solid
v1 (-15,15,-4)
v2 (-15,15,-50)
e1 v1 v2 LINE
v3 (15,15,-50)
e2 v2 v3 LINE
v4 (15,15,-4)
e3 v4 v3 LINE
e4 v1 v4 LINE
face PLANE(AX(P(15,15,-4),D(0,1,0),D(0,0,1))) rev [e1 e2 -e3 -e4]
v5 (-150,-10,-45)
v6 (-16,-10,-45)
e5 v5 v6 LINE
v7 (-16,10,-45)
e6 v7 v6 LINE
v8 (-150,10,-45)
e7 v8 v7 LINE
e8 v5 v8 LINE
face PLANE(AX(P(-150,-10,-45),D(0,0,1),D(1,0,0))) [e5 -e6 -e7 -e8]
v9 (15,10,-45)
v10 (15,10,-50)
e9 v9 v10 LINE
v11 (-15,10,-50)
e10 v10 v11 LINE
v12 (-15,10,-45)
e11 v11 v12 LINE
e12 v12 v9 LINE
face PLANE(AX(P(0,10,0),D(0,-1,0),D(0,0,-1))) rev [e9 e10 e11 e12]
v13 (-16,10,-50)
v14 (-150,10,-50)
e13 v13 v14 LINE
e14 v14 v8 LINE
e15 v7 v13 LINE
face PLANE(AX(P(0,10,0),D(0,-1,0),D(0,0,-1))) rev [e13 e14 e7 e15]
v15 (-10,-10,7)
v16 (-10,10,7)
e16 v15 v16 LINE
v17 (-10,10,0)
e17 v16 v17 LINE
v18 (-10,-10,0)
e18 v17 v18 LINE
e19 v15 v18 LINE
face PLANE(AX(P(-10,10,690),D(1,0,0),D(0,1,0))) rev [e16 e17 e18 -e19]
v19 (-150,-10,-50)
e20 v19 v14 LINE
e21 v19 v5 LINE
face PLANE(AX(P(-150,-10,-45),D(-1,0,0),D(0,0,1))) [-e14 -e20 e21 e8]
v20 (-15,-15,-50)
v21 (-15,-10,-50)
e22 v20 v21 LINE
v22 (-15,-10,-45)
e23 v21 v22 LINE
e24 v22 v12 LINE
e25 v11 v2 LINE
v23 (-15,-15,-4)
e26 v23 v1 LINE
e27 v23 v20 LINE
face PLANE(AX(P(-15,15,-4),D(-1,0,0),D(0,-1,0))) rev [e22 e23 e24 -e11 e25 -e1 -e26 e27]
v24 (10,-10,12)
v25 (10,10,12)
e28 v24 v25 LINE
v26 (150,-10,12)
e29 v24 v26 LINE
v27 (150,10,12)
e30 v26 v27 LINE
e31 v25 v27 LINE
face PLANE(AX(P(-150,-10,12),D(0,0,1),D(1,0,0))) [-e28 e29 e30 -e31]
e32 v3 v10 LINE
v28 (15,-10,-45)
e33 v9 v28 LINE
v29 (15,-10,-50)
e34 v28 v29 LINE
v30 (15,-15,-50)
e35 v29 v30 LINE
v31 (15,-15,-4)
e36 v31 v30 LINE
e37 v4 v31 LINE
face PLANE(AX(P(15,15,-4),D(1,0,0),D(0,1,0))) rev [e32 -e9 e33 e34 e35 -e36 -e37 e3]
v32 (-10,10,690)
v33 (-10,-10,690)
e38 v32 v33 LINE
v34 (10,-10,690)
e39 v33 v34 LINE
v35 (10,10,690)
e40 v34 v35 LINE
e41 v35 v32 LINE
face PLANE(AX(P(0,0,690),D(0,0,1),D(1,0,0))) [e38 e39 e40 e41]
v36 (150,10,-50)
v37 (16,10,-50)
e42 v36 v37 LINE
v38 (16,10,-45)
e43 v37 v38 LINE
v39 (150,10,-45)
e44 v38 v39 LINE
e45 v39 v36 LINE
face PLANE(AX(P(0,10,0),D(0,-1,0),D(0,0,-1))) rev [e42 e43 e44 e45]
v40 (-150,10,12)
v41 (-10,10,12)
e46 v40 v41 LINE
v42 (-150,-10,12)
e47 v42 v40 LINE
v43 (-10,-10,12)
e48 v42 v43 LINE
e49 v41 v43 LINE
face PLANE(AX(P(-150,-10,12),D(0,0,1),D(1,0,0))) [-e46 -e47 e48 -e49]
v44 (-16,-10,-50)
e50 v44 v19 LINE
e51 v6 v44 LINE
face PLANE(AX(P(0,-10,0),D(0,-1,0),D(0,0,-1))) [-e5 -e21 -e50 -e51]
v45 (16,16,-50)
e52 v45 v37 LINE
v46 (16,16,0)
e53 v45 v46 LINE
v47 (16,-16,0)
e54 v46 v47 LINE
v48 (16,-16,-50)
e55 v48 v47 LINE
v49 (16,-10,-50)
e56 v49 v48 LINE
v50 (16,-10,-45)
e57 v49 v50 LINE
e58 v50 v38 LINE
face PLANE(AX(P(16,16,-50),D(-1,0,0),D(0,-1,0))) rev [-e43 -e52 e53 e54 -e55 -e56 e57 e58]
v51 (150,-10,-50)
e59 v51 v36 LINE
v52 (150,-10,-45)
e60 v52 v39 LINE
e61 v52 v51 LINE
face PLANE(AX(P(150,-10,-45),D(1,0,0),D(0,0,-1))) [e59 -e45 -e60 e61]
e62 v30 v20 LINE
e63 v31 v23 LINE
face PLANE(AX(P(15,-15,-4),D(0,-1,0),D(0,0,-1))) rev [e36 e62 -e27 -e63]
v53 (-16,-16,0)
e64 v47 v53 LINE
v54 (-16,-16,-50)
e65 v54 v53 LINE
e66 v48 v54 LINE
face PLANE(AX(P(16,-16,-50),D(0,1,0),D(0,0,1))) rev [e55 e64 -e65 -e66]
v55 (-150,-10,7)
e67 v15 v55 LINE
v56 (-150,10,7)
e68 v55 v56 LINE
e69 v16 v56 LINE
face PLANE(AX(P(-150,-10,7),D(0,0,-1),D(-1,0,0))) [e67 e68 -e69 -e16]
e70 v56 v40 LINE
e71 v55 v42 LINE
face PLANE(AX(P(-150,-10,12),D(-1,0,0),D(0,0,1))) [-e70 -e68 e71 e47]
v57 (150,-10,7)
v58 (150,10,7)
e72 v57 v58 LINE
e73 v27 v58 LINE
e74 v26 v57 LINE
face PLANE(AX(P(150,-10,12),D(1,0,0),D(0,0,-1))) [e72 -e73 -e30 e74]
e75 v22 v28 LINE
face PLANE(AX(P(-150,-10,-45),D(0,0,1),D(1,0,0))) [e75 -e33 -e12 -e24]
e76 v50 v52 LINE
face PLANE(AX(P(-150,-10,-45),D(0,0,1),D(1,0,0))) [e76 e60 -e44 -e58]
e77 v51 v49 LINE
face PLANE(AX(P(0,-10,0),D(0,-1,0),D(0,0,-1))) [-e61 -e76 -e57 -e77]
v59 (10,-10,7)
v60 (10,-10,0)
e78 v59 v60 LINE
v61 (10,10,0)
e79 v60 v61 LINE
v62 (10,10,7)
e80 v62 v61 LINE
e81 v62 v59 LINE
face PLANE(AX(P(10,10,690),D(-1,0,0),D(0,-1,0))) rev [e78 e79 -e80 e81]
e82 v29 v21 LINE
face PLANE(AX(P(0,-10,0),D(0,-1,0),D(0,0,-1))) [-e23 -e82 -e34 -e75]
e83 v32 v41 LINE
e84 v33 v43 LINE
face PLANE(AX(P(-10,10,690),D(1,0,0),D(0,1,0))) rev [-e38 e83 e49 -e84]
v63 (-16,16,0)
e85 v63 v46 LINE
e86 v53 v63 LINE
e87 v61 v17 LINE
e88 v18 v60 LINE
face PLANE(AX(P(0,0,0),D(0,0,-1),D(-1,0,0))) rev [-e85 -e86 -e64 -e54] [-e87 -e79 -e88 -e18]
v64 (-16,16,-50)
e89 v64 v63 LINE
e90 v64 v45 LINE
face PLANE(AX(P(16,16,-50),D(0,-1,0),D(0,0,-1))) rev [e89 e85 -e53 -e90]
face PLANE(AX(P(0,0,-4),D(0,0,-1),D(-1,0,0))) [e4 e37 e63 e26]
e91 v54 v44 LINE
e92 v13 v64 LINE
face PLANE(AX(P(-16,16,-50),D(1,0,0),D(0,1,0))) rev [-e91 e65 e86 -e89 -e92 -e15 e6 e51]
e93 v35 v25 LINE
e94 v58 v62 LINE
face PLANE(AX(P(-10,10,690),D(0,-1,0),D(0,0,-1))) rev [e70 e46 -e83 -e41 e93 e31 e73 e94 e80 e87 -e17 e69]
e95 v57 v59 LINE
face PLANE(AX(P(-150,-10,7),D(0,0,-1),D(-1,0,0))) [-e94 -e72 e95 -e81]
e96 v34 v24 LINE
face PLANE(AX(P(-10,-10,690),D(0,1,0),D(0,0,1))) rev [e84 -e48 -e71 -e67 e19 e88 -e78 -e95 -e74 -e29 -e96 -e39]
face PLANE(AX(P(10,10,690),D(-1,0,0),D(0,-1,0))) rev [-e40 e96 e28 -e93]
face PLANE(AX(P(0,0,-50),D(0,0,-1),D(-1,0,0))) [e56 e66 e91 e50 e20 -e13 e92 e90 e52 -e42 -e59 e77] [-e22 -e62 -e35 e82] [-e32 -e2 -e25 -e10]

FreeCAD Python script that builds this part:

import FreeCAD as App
import Part
import Sketcher

V = App.Vector
Q = App.Units.Quantity


def add_polygon(sketch, points):
    """Adds a closed chain of lines whose ends are joined by coincident constraints."""
    first, n = sketch.GeometryCount, len(points)
    for a, b in zip(points, points[1:] + points[:1]):
        sketch.addGeometry(Part.LineSegment(App.Vector(*a, 0), App.Vector(*b, 0)), False)
    for i in range(n):
        sketch.addConstraint(Sketcher.Constraint("Coincident", first + i, 2, first + (i + 1) % n, 1))

doc = App.newDocument("Part")
body = doc.addObject("PartDesign::Body", "Body")

sketch1 = body.newObject("Sketcher::SketchObject", "Sketch")
sketch1.AttachmentSupport = (doc.getObject("XY_Plane"), [""])
sketch1.MapMode = "FlatFace"
add_polygon(sketch1, [(-10, 10), (-10, -10), (10, -10), (10, 10)])
sketch1.addConstraint([
    Sketcher.Constraint("Vertical", 0),
    Sketcher.Constraint("Horizontal", 1),
    Sketcher.Constraint("Vertical", 2),
    Sketcher.Constraint("Horizontal", 3),
    Sketcher.Constraint("Symmetric", 0, 2, 2, 2, -1, 1),
    Sketcher.Constraint("Equal", 3, 0),
    Sketcher.Constraint("DistanceX", 1, 1, 1, 2, Q("20 mm")),
])
pad1 = body.newObject("PartDesign::Pad", "Pad")
pad1.Profile = sketch1
pad1.Length = 690

sketch2 = body.newObject("Sketcher::SketchObject", "Sketch001")
sketch2.AttachmentSupport = (doc.getObject("XY_Plane"), [""])
sketch2.MapMode = "FlatFace"
add_polygon(sketch2, [(16, 16), (16, -16), (-16, -16), (-16, 16)])
sketch2.addConstraint([
    Sketcher.Constraint("Vertical", 0),
    Sketcher.Constraint("Horizontal", 1),
    Sketcher.Constraint("Vertical", 2),
    Sketcher.Constraint("Horizontal", 3),
    Sketcher.Constraint("Symmetric", 0, 2, 2, 2, -1, 1),
    Sketcher.Constraint("Equal", 3, 0),
    Sketcher.Constraint("DistanceX", 1, 2, 1, 1, Q("32 mm")),
])
pad2 = body.newObject("PartDesign::Pad", "Pad001")
pad2.Profile = sketch2
pad2.Length = 50
pad2.Reversed = True

sketch3 = body.newObject("Sketcher::SketchObject", "Sketch002")
sketch3.AttachmentSupport = (doc.getObject("XY_Plane"), [""])
sketch3.MapMode = "FlatFace"
sketch3.AttachmentOffset = App.Placement(V(0, 0, -50), App.Rotation())
add_polygon(sketch3, [(15, 15), (15, -15), (-15, -15), (-15, 15)])
sketch3.addConstraint([
    Sketcher.Constraint("Vertical", 0),
    Sketcher.Constraint("Horizontal", 1),
    Sketcher.Constraint("Vertical", 2),
    Sketcher.Constraint("Horizontal", 3),
    Sketcher.Constraint("Symmetric", 0, 2, 2, 2, -1, 1),
    Sketcher.Constraint("Equal", 3, 0),
    Sketcher.Constraint("DistanceX", 1, 2, 1, 1, Q("30 mm")),
])
pocket1 = body.newObject("PartDesign::Pocket", "Pocket")
pocket1.Profile = sketch3
pocket1.Length = 46
pocket1.Reversed = True

sketch4 = body.newObject("Sketcher::SketchObject", "Sketch003")
sketch4.AttachmentSupport = (doc.getObject("XZ_Plane"), [""])
sketch4.MapMode = "FlatFace"
sketch4.AttachmentOffset = App.Placement(V(0, 0, -10), App.Rotation())
add_polygon(sketch4, [(-150, -50), (-150, -45), (150, -45), (150, -50)])
sketch4.addConstraint([
    Sketcher.Constraint("Vertical", 0),
    Sketcher.Constraint("Horizontal", 1),
    Sketcher.Constraint("Vertical", 2),
    Sketcher.Constraint("Horizontal", 3),
    Sketcher.Constraint("DistanceX", 1, 1, 1, 2, Q("300 mm")),
    Sketcher.Constraint("DistanceY", 0, 1, 0, 2, Q("5 mm")),
    Sketcher.Constraint("DistanceX", 0, 2, -1, 1, Q("150 mm")),
    Sketcher.Constraint("DistanceY", 0, 2, -1, 1, Q("45 mm")),
])
pad3 = body.newObject("PartDesign::Pad", "Pad002")
pad3.Profile = sketch4
pad3.Length = 20
doc.recompute()

linearpattern = body.newObject("PartDesign::LinearPattern", "LinearPattern")
linearpattern.Originals = [pad3]
linearpattern.Direction = (doc.getObject("Z_Axis"), [""])
linearpattern.Mode = "offset"
linearpattern.Offset = 57
linearpattern.Occurrences = 2
body.Tip = linearpattern

doc.recompute()
